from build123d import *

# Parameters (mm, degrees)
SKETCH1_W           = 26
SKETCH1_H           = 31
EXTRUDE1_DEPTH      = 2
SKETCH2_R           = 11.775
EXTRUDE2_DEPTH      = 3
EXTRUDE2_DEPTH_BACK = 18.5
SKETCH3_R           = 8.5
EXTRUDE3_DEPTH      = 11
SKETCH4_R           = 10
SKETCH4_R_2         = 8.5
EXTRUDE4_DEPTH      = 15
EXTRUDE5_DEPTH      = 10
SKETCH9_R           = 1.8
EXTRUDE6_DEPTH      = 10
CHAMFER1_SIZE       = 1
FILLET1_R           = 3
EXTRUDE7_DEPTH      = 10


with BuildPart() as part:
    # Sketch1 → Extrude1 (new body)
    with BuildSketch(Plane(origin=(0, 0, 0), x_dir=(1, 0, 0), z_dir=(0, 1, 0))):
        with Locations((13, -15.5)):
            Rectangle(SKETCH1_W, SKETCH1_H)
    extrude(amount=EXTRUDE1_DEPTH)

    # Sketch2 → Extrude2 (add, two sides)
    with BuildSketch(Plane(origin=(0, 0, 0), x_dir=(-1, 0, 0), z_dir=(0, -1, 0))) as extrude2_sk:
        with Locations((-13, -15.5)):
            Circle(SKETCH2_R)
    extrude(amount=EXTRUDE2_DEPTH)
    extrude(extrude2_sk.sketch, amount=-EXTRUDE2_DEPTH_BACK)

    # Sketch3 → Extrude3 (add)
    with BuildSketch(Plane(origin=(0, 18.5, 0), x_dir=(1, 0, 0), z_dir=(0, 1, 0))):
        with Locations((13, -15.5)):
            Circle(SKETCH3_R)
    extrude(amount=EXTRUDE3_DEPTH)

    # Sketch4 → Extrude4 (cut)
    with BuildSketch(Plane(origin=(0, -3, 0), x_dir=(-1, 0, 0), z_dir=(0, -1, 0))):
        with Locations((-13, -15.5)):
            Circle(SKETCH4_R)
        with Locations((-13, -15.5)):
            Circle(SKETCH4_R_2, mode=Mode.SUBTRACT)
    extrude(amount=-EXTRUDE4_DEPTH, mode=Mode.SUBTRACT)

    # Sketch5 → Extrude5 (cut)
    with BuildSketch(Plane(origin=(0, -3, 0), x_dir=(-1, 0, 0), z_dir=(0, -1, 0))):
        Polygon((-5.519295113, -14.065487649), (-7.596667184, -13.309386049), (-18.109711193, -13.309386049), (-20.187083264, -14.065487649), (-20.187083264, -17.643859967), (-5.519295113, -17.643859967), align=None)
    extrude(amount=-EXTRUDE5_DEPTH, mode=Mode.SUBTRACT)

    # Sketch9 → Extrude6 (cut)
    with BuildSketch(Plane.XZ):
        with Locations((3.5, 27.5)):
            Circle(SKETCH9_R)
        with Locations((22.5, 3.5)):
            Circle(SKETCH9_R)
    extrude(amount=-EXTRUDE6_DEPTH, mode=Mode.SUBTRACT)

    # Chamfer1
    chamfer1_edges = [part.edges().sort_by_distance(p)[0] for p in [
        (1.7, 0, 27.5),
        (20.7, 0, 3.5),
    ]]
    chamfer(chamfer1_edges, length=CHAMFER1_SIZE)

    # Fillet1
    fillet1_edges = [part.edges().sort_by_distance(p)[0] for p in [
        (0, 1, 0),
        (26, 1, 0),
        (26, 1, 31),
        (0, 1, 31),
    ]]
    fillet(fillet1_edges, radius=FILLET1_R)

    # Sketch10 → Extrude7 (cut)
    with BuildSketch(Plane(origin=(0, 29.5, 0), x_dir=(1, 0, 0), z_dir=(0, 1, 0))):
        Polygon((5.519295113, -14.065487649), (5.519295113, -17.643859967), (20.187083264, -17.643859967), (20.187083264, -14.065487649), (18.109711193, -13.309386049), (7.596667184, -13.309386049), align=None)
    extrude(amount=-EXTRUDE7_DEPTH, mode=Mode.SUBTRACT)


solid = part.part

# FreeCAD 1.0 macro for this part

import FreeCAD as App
import Part
import Sketcher
from FreeCAD import Vector
Q = App.Units.Quantity


def edges_at(feature, points):
    """Names of the edges that pass closest to the given points."""
    edges = feature.Shape.Edges
    near = lambda p: min(range(len(edges)), key=lambda i: edges[i].distToShape(Part.Vertex(*p))[0])
    return sorted({f"Edge{near(p) + 1}" for p in points})


def add_polygon(sketch, points):
    """Adds a closed chain of lines whose ends are joined by coincident constraints."""
    first, n = sketch.GeometryCount, len(points)
    for a, b in zip(points, points[1:] + points[:1]):
        sketch.addGeometry(Part.LineSegment(App.Vector(*a, 0), App.Vector(*b, 0)), False)
    for i in range(n):
        sketch.addConstraint(Sketcher.Constraint("Coincident", first + i, 2, first + (i + 1) % n, 1))

doc = App.newDocument("Part")
body = doc.addObject("PartDesign::Body", "Body")

# Sketch on XZ plane
sketch1 = body.newObject("Sketcher::SketchObject", "Sketch")
sketch1.AttachmentSupport = (doc.getObject("XZ_Plane"), [""])
sketch1.MapMode = "FlatFace"
add_polygon(sketch1, [(0, 0), (0, 31), (26, 31), (26, 0)])  # lines 0-3
sketch1.addConstraint(Sketcher.Constraint("Vertical", 0))
sketch1.addConstraint(Sketcher.Constraint("Horizontal", 1))
sketch1.addConstraint(Sketcher.Constraint("Vertical", 2))
sketch1.addConstraint(Sketcher.Constraint("Horizontal", 3))
sketch1.addConstraint(Sketcher.Constraint("Coincident", 3, 2, -1, 1))
sketch1.addConstraint(Sketcher.Constraint("DistanceX", 1, 1, 1, 2, 26.0))
sketch1.addConstraint(Sketcher.Constraint("DistanceY", 0, 1, 0, 2, 31.0))
pad1 = body.newObject("PartDesign::Pad", "Pad")
pad1.Profile = sketch1
pad1.Length = 2
pad1.Reversed = True

# Sketch on XZ plane
sketch2 = body.newObject("Sketcher::SketchObject", "Sketch001")
sketch2.AttachmentSupport = (doc.getObject("XZ_Plane"), [""])
sketch2.MapMode = "FlatFace"
sketch2.addGeometry(Part.Circle(Vector(13, 16, 0), Vector(0, 0, 1), 12), False)
sketch2.addConstraint(Sketcher.Constraint("Diameter", 0, 23.55))
sketch2.addConstraint(Sketcher.Constraint("DistanceX", -1, 1, 0, 3, 13.0))
sketch2.addConstraint(Sketcher.Constraint("DistanceY", -1, 1, 0, 3, 15.5))
pad2 = body.newObject("PartDesign::Pad", "Pad001")
pad2.Profile = sketch2
pad2.Type = "TwoLengths"
pad2.Length = 3
pad2.Length2 = 18.5

# Sketch on XZ plane
sketch3 = body.newObject("Sketcher::SketchObject", "Sketch002")
sketch3.AttachmentSupport = (doc.getObject("XZ_Plane"), [""])
sketch3.MapMode = "FlatFace"
sketch3.AttachmentOffset = App.Placement(Vector(0, 0, -18.5), App.Rotation())
sketch3.addGeometry(Part.Circle(Vector(13, 16, 0), Vector(0, 0, 1), 8), False)
sketch3.addConstraint(Sketcher.Constraint("Diameter", 0, 17.0))
sketch3.addConstraint(Sketcher.Constraint("DistanceX", -1, 1, 0, 3, 13.0))
sketch3.addConstraint(Sketcher.Constraint("DistanceY", -1, 1, 0, 3, 15.5))
pad3 = body.newObject("PartDesign::Pad", "Pad002")
pad3.Profile = sketch3
pad3.Length = 11
pad3.Reversed = True

# Sketch on XZ plane
sketch4 = body.newObject("Sketcher::SketchObject", "Sketch003")
sketch4.AttachmentSupport = (doc.getObject("XZ_Plane"), [""])
sketch4.MapMode = "FlatFace"
sketch4.AttachmentOffset = App.Placement(Vector(0, 0, 3), App.Rotation())
sketch4.addGeometry(Part.Circle(Vector(13, 16, 0), Vector(0, 0, 1), 10), False)
sketch4.addGeometry(Part.Circle(Vector(13, 16, 0), Vector(0, 0, 1), 8), False)
sketch4.addConstraint(Sketcher.Constraint("Coincident", 1, 3, 0, 3))
sketch4.addConstraint(Sketcher.Constraint("Diameter", 0, 20.0))
sketch4.addConstraint(Sketcher.Constraint("Diameter", 1, 17.0))
sketch4.addConstraint(Sketcher.Constraint("DistanceX", -1, 1, 0, 3, 13.0))
sketch4.addConstraint(Sketcher.Constraint("DistanceY", -1, 1, 0, 3, 15.5))
pocket1 = body.newObject("PartDesign::Pocket", "Pocket")
pocket1.Profile = sketch4
pocket1.Length = 15

# Sketch on XZ plane
sketch5 = body.newObject("Sketcher::SketchObject", "Sketch004")
sketch5.AttachmentSupport = (doc.getObject("XZ_Plane"), [""])
sketch5.MapMode = "FlatFace"
sketch5.AttachmentOffset = App.Placement(Vector(0, 0, 3), App.Rotation())
add_polygon(sketch5, [(5.5, 14.1), (7.6, 13.3), (18.1, 13.3), (20.2, 14.1), (20.2, 17.6), (5.5, 17.6)])  # lines 0-5
sketch5.addConstraint(Sketcher.Constraint("Horizontal", 1))
sketch5.addConstraint(Sketcher.Constraint("Vertical", 3))
sketch5.addConstraint(Sketcher.Constraint("Horizontal", 4))
sketch5.addConstraint(Sketcher.Constraint("Vertical", 5))
sketch5.addConstraint(Sketcher.Constraint("Horizontal", 2, 2, 5, 2))
sketch5.addConstraint(Sketcher.Constraint("Equal", 0, 2))
sketch5.addConstraint(Sketcher.Constraint("Angle", 0, Q("-20 deg")))
sketch5.addConstraint(Sketcher.Constraint("DistanceX", 4, 2, 4, 1, 14.667788))
sketch5.addConstraint(Sketcher.Constraint("DistanceY", 1, 2, 2, 2, 0.756102))
sketch5.addConstraint(Sketcher.Constraint("DistanceY", 3, 1, 3, 2, 3.578372))
sketch5.addConstraint(Sketcher.Constraint("DistanceX", -1, 1, 1, 2, 18.109711))
sketch5.addConstraint(Sketcher.Constraint("DistanceY", -1, 1, 3, 2, 17.64386))
pocket2 = body.newObject("PartDesign::Pocket", "Pocket001")
pocket2.Profile = sketch5
pocket2.Length = 10

# Sketch on XZ plane
sketch6 = body.newObject("Sketcher::SketchObject", "Sketch005")
sketch6.AttachmentSupport = (doc.getObject("XZ_Plane"), [""])
sketch6.MapMode = "FlatFace"
sketch6.addGeometry(Part.Circle(Vector(3.5, 27.5, 0), Vector(0, 0, 1), 1.8), False)
sketch6.addGeometry(Part.Circle(Vector(22.5, 3.5, 0), Vector(0, 0, 1), 1.8), False)
sketch6.addConstraint(Sketcher.Constraint("Equal", 0, 1))
sketch6.addConstraint(Sketcher.Constraint("Diameter", 0, 3.6))
sketch6.addConstraint(Sketcher.Constraint("DistanceX", 0, 3, 1, 3, 19.0))
sketch6.addConstraint(Sketcher.Constraint("DistanceY", 1, 3, 0, 3, 24.0))
sketch6.addConstraint(Sketcher.Constraint("DistanceX", -1, 1, 0, 3, 3.5))
sketch6.addConstraint(Sketcher.Constraint("DistanceY", -1, 1, 0, 3, 27.5))
pocket3 = body.newObject("PartDesign::Pocket", "Pocket002")
pocket3.Profile = sketch6
pocket3.Length = 10
doc.recompute()

chamfer = body.newObject("PartDesign::Chamfer", "Chamfer")
chamfer.Base = (pocket3, edges_at(pocket3, [(1.7, 0, 27.5), (20.7, 0, 3.5)]))
chamfer.Size = 1
doc.recompute()

fillet = body.newObject("PartDesign::Fillet", "Fillet")
fillet.Base = (chamfer, edges_at(chamfer, [
    (0, 1, 0),
    (26, 1, 0),
    (26, 1, 31),
    (0, 1, 31),
]))
fillet.Radius = 3

# Sketch on XZ plane
sketch7 = body.newObject("Sketcher::SketchObject", "Sketch006")
sketch7.AttachmentSupport = (doc.getObject("XZ_Plane"), [""])
sketch7.MapMode = "FlatFace"
sketch7.AttachmentOffset = App.Placement(Vector(0, 0, -29.5), App.Rotation())
add_polygon(sketch7, [(5.5, 14.1), (5.5, 17.6), (20.2, 17.6), (20.2, 14.1), (18.1, 13.3), (7.6, 13.3)])  # lines 0-5
sketch7.addConstraint(Sketcher.Constraint("Vertical", 0))
sketch7.addConstraint(Sketcher.Constraint("Horizontal", 1))
sketch7.addConstraint(Sketcher.Constraint("Vertical", 2))
sketch7.addConstraint(Sketcher.Constraint("Horizontal", 4))
sketch7.addConstraint(Sketcher.Constraint("Horizontal", 2, 2, 5, 2))
sketch7.addConstraint(Sketcher.Constraint("Equal", 3, 5))
sketch7.addConstraint(Sketcher.Constraint("Angle", 3, Q("-160 deg")))
sketch7.addConstraint(Sketcher.Constraint("DistanceX", 1, 1, 1, 2, 14.667788))
sketch7.addConstraint(Sketcher.Constraint("DistanceY", 3, 2, 2, 2, 0.756102))
sketch7.addConstraint(Sketcher.Constraint("DistanceY", 0, 1, 0, 2, 3.578372))
sketch7.addConstraint(Sketcher.Constraint("DistanceY", -1, 1, 0, 2, 17.64386))
sketch7.addConstraint(Sketcher.Constraint("DistanceX", -1, 1, 3, 2, 18.109711))
pocket4 = body.newObject("PartDesign::Pocket", "Pocket003")
pocket4.Profile = sketch7
pocket4.Length = 10
pocket4.Reversed = True

doc.recompute()
